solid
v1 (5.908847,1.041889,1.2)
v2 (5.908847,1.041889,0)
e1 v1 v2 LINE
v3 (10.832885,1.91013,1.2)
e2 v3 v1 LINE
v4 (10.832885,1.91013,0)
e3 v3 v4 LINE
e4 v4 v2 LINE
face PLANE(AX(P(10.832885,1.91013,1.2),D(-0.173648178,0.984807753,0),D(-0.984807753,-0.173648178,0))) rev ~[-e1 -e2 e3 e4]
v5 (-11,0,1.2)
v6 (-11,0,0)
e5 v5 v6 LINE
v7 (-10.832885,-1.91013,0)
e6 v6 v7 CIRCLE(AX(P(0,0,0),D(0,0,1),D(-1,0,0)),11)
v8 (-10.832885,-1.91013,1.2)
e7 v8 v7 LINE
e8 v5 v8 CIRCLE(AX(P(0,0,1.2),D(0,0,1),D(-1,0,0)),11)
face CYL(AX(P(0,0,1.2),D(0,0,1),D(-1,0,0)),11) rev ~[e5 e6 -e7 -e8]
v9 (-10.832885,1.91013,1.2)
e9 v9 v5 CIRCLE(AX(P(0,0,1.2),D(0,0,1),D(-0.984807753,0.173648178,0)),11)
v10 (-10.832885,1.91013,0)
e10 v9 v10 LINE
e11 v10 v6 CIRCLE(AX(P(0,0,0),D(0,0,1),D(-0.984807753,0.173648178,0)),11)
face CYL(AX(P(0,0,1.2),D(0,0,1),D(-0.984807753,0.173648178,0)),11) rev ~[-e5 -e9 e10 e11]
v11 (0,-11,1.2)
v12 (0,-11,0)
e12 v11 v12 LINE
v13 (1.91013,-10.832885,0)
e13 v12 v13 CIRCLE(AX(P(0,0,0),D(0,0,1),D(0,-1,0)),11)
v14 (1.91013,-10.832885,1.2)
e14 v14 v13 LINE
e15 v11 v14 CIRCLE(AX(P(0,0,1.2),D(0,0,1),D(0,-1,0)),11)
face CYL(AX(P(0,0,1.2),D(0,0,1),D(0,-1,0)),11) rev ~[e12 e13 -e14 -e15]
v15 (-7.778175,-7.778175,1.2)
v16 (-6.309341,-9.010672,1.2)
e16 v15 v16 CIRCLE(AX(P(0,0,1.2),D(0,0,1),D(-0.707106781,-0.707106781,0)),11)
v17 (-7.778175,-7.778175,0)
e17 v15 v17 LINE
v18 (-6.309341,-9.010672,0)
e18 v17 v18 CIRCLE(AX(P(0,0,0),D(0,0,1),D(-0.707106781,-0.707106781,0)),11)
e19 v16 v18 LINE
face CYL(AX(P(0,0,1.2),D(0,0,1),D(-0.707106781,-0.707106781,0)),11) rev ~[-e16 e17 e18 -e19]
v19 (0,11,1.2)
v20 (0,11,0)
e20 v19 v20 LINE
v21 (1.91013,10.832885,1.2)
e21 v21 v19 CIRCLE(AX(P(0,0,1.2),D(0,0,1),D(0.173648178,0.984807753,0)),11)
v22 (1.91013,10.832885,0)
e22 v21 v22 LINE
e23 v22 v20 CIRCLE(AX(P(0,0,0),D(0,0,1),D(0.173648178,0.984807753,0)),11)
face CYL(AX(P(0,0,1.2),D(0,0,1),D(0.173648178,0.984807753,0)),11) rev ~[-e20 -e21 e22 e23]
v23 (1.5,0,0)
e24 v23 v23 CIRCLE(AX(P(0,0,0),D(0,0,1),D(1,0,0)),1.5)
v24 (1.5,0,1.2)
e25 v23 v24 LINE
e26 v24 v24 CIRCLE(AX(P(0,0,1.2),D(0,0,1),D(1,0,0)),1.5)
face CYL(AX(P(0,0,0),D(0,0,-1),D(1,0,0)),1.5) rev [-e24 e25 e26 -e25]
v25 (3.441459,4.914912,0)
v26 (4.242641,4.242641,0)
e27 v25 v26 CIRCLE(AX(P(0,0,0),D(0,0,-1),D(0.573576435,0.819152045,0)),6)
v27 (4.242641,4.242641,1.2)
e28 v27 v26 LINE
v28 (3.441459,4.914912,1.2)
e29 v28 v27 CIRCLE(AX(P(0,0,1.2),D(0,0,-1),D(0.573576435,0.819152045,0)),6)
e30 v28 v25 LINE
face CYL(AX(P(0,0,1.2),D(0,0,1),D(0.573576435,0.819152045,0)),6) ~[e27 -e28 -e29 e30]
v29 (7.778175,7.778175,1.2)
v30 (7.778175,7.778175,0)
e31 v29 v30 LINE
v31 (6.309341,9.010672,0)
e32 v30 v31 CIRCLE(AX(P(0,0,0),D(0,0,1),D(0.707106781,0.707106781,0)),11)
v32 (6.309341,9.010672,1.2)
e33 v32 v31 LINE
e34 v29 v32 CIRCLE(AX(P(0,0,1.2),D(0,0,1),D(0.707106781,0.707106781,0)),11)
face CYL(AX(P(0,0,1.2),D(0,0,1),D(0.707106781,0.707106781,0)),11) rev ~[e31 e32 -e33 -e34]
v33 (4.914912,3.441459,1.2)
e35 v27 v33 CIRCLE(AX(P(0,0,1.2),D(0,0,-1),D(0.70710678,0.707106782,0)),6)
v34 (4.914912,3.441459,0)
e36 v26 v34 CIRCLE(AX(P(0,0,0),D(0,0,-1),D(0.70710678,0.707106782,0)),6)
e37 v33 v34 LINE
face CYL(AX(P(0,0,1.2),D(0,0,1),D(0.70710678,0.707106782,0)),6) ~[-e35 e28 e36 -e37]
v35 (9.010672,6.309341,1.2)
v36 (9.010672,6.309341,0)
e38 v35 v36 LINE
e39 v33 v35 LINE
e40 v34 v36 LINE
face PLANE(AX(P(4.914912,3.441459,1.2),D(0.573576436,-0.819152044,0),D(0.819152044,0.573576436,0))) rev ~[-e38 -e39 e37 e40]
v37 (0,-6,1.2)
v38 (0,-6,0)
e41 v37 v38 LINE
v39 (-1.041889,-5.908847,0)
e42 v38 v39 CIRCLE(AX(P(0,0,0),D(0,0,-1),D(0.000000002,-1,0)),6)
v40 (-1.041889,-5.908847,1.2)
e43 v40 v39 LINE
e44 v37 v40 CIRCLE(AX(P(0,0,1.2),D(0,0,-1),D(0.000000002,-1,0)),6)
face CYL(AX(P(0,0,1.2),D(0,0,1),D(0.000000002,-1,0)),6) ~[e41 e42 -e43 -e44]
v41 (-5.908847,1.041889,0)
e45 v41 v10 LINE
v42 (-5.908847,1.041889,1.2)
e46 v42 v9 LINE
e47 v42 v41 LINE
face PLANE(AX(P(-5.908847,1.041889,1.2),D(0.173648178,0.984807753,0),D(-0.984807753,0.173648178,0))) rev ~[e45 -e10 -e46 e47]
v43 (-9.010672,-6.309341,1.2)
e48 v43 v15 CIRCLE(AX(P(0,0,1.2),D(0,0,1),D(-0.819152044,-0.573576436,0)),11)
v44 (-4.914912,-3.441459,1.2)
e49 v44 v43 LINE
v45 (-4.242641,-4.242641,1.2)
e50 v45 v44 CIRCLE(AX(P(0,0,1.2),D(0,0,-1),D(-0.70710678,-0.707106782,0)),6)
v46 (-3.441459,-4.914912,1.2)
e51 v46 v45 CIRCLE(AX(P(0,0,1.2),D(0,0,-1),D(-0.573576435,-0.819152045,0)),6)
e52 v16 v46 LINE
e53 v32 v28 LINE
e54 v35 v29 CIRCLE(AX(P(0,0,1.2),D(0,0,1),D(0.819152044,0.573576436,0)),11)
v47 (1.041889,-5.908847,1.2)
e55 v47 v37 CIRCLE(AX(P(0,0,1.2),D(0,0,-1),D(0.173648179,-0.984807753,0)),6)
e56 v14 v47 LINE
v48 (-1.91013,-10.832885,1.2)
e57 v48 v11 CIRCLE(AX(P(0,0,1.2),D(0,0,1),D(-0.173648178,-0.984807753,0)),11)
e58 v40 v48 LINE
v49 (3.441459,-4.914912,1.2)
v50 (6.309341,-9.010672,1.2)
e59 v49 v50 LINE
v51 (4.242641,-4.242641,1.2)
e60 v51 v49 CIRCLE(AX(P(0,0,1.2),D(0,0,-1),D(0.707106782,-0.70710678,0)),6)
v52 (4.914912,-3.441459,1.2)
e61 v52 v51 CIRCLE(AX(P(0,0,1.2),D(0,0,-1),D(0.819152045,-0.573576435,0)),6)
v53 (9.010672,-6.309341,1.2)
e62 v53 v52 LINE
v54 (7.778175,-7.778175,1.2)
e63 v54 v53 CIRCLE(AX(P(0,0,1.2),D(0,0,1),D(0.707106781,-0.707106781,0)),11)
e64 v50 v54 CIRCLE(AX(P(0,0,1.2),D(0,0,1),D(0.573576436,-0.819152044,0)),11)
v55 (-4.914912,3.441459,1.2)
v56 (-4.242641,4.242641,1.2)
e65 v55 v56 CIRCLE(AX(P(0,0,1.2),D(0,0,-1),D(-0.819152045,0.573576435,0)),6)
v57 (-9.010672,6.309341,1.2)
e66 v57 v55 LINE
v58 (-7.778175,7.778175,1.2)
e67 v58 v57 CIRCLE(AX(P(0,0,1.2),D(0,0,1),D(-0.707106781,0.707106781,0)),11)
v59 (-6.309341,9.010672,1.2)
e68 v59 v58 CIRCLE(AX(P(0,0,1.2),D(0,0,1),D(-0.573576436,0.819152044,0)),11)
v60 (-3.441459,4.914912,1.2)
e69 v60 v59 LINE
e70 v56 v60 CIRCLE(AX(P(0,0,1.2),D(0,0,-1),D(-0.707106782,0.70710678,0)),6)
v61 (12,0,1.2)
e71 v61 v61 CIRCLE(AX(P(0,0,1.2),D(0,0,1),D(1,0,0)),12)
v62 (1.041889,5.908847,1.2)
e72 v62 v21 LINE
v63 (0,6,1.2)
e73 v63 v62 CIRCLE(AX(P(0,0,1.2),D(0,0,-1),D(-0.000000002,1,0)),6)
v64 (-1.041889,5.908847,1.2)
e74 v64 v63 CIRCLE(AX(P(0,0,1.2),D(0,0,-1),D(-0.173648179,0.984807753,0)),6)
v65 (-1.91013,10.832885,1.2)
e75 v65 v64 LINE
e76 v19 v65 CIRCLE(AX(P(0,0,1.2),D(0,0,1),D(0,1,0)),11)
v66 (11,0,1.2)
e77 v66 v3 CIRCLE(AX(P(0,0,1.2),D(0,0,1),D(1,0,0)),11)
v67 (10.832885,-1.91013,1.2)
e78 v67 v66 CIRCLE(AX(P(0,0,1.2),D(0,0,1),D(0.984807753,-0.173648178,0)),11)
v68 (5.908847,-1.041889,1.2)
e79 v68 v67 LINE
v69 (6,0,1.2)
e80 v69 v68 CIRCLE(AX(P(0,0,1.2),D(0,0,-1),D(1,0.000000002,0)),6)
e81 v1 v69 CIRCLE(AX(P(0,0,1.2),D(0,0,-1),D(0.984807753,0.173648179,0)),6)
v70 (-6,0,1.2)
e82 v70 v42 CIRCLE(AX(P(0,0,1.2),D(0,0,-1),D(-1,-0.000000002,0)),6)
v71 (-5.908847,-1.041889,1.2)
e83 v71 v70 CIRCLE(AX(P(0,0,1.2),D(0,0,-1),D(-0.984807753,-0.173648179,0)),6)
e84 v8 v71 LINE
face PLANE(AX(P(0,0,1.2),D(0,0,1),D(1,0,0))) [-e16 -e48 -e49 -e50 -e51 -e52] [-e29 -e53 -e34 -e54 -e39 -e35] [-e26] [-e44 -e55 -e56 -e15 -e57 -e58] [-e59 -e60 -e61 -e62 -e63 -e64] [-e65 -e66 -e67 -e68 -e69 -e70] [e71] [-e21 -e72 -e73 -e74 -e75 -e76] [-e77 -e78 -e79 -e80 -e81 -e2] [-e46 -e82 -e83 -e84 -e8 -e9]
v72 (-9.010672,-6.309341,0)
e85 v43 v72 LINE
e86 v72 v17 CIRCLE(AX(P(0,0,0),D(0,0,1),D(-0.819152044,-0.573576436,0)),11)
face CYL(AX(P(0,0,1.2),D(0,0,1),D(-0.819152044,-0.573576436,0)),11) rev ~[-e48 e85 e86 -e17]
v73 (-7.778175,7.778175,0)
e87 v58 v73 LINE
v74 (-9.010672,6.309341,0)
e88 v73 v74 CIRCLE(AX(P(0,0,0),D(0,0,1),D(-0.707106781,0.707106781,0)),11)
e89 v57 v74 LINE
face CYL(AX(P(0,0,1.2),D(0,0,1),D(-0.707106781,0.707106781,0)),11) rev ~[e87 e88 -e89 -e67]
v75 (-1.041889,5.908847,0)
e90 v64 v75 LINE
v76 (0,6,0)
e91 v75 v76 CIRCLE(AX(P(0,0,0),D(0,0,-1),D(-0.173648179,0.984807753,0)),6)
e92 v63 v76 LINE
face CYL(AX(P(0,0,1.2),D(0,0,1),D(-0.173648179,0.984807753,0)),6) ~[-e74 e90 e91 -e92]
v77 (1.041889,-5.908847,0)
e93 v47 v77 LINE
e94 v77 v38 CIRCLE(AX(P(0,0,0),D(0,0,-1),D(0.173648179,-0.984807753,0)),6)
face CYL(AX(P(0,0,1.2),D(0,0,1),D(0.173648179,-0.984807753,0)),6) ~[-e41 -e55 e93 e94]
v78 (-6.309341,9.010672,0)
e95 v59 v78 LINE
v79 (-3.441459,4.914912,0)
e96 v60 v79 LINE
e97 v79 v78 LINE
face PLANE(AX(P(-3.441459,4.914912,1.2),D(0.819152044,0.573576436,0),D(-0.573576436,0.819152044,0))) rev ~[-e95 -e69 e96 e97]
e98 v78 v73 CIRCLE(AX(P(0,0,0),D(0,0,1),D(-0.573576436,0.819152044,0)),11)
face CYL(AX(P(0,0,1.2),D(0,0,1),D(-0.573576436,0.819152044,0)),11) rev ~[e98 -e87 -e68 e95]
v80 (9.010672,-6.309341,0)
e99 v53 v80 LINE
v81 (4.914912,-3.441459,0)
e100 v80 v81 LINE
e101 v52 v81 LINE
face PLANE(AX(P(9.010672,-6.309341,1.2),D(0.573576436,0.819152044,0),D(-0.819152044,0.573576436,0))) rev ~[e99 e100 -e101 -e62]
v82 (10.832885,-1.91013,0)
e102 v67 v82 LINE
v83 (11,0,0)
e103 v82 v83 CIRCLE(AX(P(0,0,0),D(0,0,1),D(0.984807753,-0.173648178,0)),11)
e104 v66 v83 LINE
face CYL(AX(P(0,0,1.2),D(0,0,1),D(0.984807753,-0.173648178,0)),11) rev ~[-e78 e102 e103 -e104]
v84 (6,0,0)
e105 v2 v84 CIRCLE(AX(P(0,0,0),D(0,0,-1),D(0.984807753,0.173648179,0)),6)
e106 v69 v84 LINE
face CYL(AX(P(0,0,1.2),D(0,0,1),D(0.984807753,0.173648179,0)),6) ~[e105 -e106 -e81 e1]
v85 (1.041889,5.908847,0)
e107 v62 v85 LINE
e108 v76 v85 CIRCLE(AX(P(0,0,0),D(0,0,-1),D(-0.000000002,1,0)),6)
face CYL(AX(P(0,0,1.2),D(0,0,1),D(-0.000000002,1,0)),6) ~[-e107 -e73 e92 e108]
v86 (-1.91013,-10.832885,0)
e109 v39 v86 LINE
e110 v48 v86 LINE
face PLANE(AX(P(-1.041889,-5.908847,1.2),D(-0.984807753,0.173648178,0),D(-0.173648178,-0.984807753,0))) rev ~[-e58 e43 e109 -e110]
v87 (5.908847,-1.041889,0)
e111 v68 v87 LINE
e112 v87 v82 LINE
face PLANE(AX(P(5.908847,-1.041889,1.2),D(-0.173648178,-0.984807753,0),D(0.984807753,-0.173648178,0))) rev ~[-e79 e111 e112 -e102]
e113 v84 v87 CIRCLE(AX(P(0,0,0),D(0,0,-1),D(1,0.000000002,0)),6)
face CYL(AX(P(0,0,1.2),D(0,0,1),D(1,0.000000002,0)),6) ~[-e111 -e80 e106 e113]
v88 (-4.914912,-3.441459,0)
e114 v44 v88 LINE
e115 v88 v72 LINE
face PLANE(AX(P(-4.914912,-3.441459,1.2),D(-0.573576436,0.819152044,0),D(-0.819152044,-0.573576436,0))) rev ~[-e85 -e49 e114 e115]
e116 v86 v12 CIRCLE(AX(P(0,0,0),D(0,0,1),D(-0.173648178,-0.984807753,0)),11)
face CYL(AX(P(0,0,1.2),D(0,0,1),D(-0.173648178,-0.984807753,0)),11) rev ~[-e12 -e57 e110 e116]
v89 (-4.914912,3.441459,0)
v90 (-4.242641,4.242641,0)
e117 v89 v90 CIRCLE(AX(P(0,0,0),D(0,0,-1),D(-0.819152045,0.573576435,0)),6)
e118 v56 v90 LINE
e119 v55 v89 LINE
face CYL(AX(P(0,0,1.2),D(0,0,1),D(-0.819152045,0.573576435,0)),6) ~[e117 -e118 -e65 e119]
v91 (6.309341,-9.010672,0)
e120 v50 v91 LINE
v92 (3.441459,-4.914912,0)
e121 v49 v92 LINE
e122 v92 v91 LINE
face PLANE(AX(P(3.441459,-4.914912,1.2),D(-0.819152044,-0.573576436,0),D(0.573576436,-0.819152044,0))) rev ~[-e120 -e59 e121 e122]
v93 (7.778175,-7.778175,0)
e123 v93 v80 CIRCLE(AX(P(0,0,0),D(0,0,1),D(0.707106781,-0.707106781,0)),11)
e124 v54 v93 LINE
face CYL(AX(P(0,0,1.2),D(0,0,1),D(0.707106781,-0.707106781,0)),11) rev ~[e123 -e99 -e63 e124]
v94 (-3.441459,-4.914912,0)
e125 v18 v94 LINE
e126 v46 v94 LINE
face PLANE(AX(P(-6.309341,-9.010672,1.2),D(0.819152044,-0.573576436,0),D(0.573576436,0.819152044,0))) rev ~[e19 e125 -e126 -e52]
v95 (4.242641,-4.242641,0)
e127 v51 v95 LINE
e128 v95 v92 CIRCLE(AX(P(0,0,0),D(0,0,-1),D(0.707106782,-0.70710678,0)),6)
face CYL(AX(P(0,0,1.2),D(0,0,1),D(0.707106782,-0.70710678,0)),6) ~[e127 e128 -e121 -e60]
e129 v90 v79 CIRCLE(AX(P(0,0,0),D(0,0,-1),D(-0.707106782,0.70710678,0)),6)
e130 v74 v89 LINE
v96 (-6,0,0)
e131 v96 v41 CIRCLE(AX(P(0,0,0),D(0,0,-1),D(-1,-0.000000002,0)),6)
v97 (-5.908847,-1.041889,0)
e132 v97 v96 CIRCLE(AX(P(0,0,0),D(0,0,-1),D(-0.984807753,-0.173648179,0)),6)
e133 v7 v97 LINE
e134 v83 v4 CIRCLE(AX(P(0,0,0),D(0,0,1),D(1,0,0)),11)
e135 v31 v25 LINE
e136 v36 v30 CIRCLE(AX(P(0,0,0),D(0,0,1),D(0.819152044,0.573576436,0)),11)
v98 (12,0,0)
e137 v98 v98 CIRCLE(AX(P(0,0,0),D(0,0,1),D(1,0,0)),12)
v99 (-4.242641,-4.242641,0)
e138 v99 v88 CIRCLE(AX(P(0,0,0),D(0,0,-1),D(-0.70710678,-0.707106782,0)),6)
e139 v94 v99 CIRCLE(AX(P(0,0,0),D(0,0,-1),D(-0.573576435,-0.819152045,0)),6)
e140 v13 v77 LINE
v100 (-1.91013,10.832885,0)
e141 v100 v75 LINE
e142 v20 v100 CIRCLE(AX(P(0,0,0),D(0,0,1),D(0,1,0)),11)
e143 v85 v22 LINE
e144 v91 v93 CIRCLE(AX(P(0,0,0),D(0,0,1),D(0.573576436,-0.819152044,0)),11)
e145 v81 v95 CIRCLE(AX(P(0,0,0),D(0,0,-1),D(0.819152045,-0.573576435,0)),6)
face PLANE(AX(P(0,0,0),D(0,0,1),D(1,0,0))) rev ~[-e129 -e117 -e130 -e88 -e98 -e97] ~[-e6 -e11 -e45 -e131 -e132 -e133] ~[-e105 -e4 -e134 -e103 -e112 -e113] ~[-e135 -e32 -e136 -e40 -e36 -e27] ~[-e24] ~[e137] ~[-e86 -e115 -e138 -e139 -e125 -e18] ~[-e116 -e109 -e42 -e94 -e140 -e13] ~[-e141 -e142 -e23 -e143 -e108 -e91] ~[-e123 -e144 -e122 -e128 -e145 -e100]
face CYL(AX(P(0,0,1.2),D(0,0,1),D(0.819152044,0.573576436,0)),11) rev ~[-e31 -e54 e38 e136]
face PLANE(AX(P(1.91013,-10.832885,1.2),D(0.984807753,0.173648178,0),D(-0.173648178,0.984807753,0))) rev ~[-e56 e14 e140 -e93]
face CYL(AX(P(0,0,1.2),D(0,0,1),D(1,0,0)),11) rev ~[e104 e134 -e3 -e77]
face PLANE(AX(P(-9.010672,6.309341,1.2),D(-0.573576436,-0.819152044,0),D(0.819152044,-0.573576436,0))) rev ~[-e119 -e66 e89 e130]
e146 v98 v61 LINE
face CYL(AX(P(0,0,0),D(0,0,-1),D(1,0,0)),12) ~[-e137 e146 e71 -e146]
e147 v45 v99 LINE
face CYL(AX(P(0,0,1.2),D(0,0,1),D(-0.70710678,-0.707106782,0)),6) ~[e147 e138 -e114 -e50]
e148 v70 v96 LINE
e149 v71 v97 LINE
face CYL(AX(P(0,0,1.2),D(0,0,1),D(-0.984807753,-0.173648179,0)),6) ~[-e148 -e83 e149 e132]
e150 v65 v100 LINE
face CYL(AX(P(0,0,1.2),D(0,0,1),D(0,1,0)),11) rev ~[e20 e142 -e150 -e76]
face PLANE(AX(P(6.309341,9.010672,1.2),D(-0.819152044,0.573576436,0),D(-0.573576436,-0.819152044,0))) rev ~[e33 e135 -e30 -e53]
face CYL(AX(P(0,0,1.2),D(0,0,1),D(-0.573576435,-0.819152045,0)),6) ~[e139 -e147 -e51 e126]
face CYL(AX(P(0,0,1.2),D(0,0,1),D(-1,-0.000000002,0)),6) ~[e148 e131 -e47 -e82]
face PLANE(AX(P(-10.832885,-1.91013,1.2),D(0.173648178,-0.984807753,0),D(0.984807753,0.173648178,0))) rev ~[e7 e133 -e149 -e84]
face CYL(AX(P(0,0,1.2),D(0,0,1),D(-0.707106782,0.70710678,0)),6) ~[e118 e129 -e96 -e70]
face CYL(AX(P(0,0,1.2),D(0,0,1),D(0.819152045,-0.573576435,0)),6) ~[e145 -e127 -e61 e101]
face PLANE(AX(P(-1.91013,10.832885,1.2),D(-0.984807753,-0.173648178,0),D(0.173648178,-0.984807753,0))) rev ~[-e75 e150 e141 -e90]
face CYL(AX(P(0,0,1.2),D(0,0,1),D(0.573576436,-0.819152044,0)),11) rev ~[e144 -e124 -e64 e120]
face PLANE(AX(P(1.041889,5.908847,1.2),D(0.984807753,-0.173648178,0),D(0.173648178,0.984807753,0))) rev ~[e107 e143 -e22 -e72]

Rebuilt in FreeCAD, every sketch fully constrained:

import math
import FreeCAD as App
import Part
import Sketcher

V = App.Vector
Q = App.Units.Quantity

doc = App.newDocument("Part")
params = doc.addObject("Spreadsheet::Sheet", "Params")
for row, (alias, value) in enumerate([
    ("sketch1_diameter", "24 mm"),
    ("sketch1_diameter2", "3 mm"),
    ("pad1_length", "1.2 mm"),
    ("sketch2_radius", "6 mm"),
    ("sketch2_radius2", "11 mm"),
    ("pocket1_length", "1.2 mm"),
], start=1):
    params.set(f"A{row}", alias)
    params.set(f"B{row}", "=" + value)
    params.setAlias(f"B{row}", alias)

body = doc.addObject("PartDesign::Body", "Body")

sketch1 = doc.addObject("Sketcher::SketchObject", "Sketch")
body.addObject(sketch1)
sketch1.AttachmentSupport = (doc.XY_Plane, [""])
sketch1.MapMode = "FlatFace"
sketch1.addGeometry(Part.Circle(V(0, 0, 0), V(0, 0, 1), 12), False)
sketch1.addGeometry(Part.Circle(V(0, 0, 0), V(0, 0, 1), 1.5), False)
sketch1.addConstraint(Sketcher.Constraint("Coincident", 0, 3, -1, 1))
sketch1.addConstraint(Sketcher.Constraint("Coincident", 1, 3, -1, 1))
sketch1.addConstraint(Sketcher.Constraint("Diameter", 0, Q("24 mm")))
sketch1.addConstraint(Sketcher.Constraint("Diameter", 1, Q("3 mm")))
sketch1.setExpression("Constraints[2]", "Params.sketch1_diameter")
sketch1.setExpression("Constraints[3]", "Params.sketch1_diameter2")
pad1 = doc.addObject("PartDesign::Pad", "Pad")
body.addObject(pad1)
pad1.Profile = sketch1
pad1.setExpression("Length", "Params.pad1_length")

sketch2 = doc.addObject("Sketcher::SketchObject", "Sketch001")
body.addObject(sketch2)
sketch2.AttachmentSupport = (doc.XY_Plane, [""])
sketch2.MapMode = "FlatFace"
sketch2.AttachmentOffset = App.Placement(V(0, 0, 1.2), App.Rotation())
sketch2.addGeometry(Part.ArcOfCircle(Part.Circle(V(0, 0, 0), V(0, 0, 1), 6), math.radians(90), math.radians(100)), False)
sketch2.addGeometry(Part.ArcOfCircle(Part.Circle(V(0, 0, 0), V(0, 0, 1), 6), math.radians(80), math.radians(90)), False)
sketch2.addGeometry(Part.LineSegment(V(1.041889, 5.908847, 0), V(1.91013, 10.832885, 0)), False)
sketch2.addGeometry(Part.ArcOfCircle(Part.Circle(V(0, 0, 0), V(0, 0, 1), 11), math.radians(80), math.radians(90)), False)
sketch2.addGeometry(Part.ArcOfCircle(Part.Circle(V(0, 0, 0), V(0, 0, 1), 11), math.radians(90), math.radians(100)), False)
sketch2.addGeometry(Part.LineSegment(V(-1.91013, 10.832885, 0), V(-1.041889, 5.908847, 0)), False)
sketch2.addConstraint(Sketcher.Constraint("Tangent", 0, 1, 1, 2))
sketch2.addConstraint(Sketcher.Constraint("Coincident", 1, 1, 2, 1))
sketch2.addConstraint(Sketcher.Constraint("Coincident", 2, 2, 3, 1))
sketch2.addConstraint(Sketcher.Constraint("Tangent", 3, 2, 4, 1))
sketch2.addConstraint(Sketcher.Constraint("Coincident", 4, 2, 5, 1))
sketch2.addConstraint(Sketcher.Constraint("Coincident", 5, 2, 0, 2))
sketch2.addConstraint(Sketcher.Constraint("Coincident", 0, 3, -1, 1))
sketch2.addConstraint(Sketcher.Constraint("Coincident", 3, 3, -1, 1))
sketch2.addConstraint(Sketcher.Constraint("Equal", 0, 1))
sketch2.addConstraint(Sketcher.Constraint("Equal", 3, 4))
sketch2.addConstraint(Sketcher.Constraint("PointOnObject", 0, 1, -2))
sketch2.addConstraint(Sketcher.Constraint("PointOnObject", 3, 2, -2))
sketch2.addConstraint(Sketcher.Constraint("Horizontal", 2, 2, 4, 2))
sketch2.addConstraint(Sketcher.Constraint("Horizontal", 1, 1, 5, 2))
sketch2.addConstraint(Sketcher.Constraint("Radius", 0, Q("6 mm")))
sketch2.addConstraint(Sketcher.Constraint("Radius", 3, Q("11 mm")))
sketch2.addConstraint(Sketcher.Constraint("Angle", 2, Q("80 deg")))
sketch2.addConstraint(Sketcher.Constraint("DistanceX", -1, 1, 1, 1, Q("1.041889 mm")))
sketch2.setExpression("Constraints[14]", "Params.sketch2_radius")
sketch2.setExpression("Constraints[15]", "Params.sketch2_radius2")
pocket1 = doc.addObject("PartDesign::Pocket", "Pocket")
body.addObject(pocket1)
pocket1.Profile = sketch2
pocket1.setExpression("Length", "Params.pocket1_length")
doc.recompute()

polarpattern = doc.addObject("PartDesign::PolarPattern", "PolarPattern")
body.addObject(polarpattern)
polarpattern.Originals = [pocket1]
polarpattern.Axis = (doc.Z_Axis, [""])
polarpattern.Angle = 360
polarpattern.Occurrences = 8
body.Tip = polarpattern

doc.recompute()
